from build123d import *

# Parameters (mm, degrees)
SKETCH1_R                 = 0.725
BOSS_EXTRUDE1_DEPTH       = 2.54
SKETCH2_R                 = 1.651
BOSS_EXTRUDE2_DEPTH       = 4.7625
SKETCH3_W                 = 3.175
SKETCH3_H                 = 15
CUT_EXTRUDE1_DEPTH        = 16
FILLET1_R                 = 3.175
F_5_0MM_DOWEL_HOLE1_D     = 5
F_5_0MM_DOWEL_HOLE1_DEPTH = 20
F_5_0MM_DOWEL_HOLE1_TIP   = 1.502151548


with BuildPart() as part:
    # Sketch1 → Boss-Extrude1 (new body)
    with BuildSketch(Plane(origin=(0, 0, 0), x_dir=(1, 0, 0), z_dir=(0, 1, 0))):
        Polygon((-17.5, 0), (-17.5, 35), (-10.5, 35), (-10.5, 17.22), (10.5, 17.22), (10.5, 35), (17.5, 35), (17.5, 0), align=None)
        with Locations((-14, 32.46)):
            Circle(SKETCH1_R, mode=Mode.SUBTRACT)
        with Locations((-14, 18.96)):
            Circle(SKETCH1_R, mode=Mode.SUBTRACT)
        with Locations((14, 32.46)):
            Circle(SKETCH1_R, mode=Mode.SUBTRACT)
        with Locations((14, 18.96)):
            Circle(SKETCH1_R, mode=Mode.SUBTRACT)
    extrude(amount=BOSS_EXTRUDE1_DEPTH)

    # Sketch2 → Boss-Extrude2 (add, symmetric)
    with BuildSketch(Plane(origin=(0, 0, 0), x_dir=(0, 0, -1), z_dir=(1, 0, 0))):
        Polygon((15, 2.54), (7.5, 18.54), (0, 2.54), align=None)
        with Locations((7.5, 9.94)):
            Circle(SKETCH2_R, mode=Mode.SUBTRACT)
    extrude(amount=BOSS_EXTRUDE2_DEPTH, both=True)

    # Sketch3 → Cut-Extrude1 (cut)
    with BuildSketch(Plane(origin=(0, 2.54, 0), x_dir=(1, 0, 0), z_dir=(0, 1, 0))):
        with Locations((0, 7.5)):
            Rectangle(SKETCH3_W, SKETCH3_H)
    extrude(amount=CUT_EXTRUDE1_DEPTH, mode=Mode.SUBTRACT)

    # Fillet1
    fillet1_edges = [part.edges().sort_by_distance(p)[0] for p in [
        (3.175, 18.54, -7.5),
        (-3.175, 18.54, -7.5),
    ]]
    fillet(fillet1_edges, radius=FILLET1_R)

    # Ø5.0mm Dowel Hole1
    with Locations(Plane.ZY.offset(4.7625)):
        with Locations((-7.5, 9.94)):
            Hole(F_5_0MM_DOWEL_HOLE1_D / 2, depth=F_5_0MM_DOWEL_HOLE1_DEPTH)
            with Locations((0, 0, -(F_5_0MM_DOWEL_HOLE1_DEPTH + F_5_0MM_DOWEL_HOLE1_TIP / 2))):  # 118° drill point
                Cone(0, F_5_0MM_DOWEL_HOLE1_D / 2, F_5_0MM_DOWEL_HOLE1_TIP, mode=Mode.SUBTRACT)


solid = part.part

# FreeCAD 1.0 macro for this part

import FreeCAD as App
import Part
import Sketcher
Q = App.Units.Quantity


def edges_at(feature, points):
    """Names of the edges that pass closest to the given points."""
    edges = feature.Shape.Edges
    near = lambda p: min(range(len(edges)), key=lambda i: edges[i].distToShape(Part.Vertex(*p))[0])
    return sorted({f"Edge{near(p) + 1}" for p in points})

doc = App.newDocument("Part")
body = doc.addObject("PartDesign::Body", "Body")

# Sketch on XZ plane
sketch1 = doc.addObject("Sketcher::SketchObject", "Sketch")
body.addObject(sketch1)
sketch1.AttachmentSupport = (doc.XZ_Plane, [""])
sketch1.MapMode = "FlatFace"
sketch1.addGeometry(Part.LineSegment(App.Vector(-17.5, -35, 0), App.Vector(-17.5, 0, 0)), False)
sketch1.addGeometry(Part.LineSegment(App.Vector(-17.5, 0, 0), App.Vector(17.5, 0, 0)), False)
sketch1.addGeometry(Part.LineSegment(App.Vector(17.5, 0, 0), App.Vector(17.5, -35, 0)), False)
sketch1.addGeometry(Part.LineSegment(App.Vector(17.5, -35, 0), App.Vector(10.5, -35, 0)), False)
sketch1.addGeometry(Part.LineSegment(App.Vector(10.5, -35, 0), App.Vector(10.5, -17.2, 0)), False)
sketch1.addGeometry(Part.LineSegment(App.Vector(10.5, -17.2, 0), App.Vector(-10.5, -17.2, 0)), False)
sketch1.addGeometry(Part.LineSegment(App.Vector(-10.5, -17.2, 0), App.Vector(-10.5, -35, 0)), False)
sketch1.addGeometry(Part.LineSegment(App.Vector(-10.5, -35, 0), App.Vector(-17.5, -35, 0)), False)
sketch1.addGeometry(Part.Circle(App.Vector(14, -19, 0), App.Vector(0, 0, 1), 0.7), False)
sketch1.addGeometry(Part.Circle(App.Vector(-14, -19, 0), App.Vector(0, 0, 1), 0.7), False)
sketch1.addGeometry(Part.Circle(App.Vector(14, -32.5, 0), App.Vector(0, 0, 1), 0.7), False)
sketch1.addGeometry(Part.Circle(App.Vector(-14, -32.5, 0), App.Vector(0, 0, 1), 0.7), False)
sketch1.addConstraint(Sketcher.Constraint("Coincident", 0, 2, 1, 1))
sketch1.addConstraint(Sketcher.Constraint("Coincident", 1, 2, 2, 1))
sketch1.addConstraint(Sketcher.Constraint("Coincident", 2, 2, 3, 1))
sketch1.addConstraint(Sketcher.Constraint("Coincident", 3, 2, 4, 1))
sketch1.addConstraint(Sketcher.Constraint("Coincident", 4, 2, 5, 1))
sketch1.addConstraint(Sketcher.Constraint("Coincident", 5, 2, 6, 1))
sketch1.addConstraint(Sketcher.Constraint("Coincident", 6, 2, 7, 1))
sketch1.addConstraint(Sketcher.Constraint("Coincident", 7, 2, 0, 1))
sketch1.addConstraint(Sketcher.Constraint("Vertical", 0))
sketch1.addConstraint(Sketcher.Constraint("Horizontal", 1))
sketch1.addConstraint(Sketcher.Constraint("Vertical", 2))
sketch1.addConstraint(Sketcher.Constraint("Horizontal", 3))
sketch1.addConstraint(Sketcher.Constraint("Vertical", 4))
sketch1.addConstraint(Sketcher.Constraint("Horizontal", 5))
sketch1.addConstraint(Sketcher.Constraint("Vertical", 6))
sketch1.addConstraint(Sketcher.Constraint("Horizontal", 7))
sketch1.addConstraint(Sketcher.Constraint("Equal", 8, 9))
sketch1.addConstraint(Sketcher.Constraint("Equal", 9, 10))
sketch1.addConstraint(Sketcher.Constraint("Equal", 10, 11))
sketch1.addConstraint(Sketcher.Constraint("Symmetric", 0, 2, 1, 2, -1, 1))
sketch1.addConstraint(Sketcher.Constraint("Symmetric", 8, 3, 9, 3, -2))
sketch1.addConstraint(Sketcher.Constraint("Symmetric", 10, 3, 11, 3, -2))
sketch1.addConstraint(Sketcher.Constraint("Symmetric", 3, 2, 6, 2, -2))
sketch1.addConstraint(Sketcher.Constraint("Vertical", 8, 3, 10, 3))
sketch1.addConstraint(Sketcher.Constraint("Equal", 1, 0))
sketch1.addConstraint(Sketcher.Constraint("Diameter", 8, Q("1.45 mm")))
sketch1.addConstraint(Sketcher.Constraint("DistanceX", 1, 1, 1, 2, Q("35 mm")))
sketch1.addConstraint(Sketcher.Constraint("DistanceX", 3, 2, 3, 1, Q("7 mm")))
sketch1.addConstraint(Sketcher.Constraint("DistanceX", -1, 1, 8, 3, Q("14 mm")))
sketch1.addConstraint(Sketcher.Constraint("DistanceY", 4, 1, 4, 2, Q("17.78 mm")))
sketch1.addConstraint(Sketcher.Constraint("DistanceY", 10, 3, 8, 3, Q("13.5 mm")))
sketch1.addConstraint(Sketcher.Constraint("DistanceY", 8, 3, -1, 1, Q("18.96 mm")))
pad1 = doc.addObject("PartDesign::Pad", "Pad")
body.addObject(pad1)
pad1.Profile = sketch1
pad1.Length = 2.54
pad1.Reversed = True

# Sketch on YZ plane
sketch2 = doc.addObject("Sketcher::SketchObject", "Sketch001")
body.addObject(sketch2)
sketch2.AttachmentSupport = (doc.YZ_Plane, [""])
sketch2.MapMode = "FlatFace"
sketch2.addGeometry(Part.LineSegment(App.Vector(2.5, -15, 0), App.Vector(18.5, -7.5, 0)), False)
sketch2.addGeometry(Part.LineSegment(App.Vector(18.5, -7.5, 0), App.Vector(2.5, 0, 0)), False)
sketch2.addGeometry(Part.LineSegment(App.Vector(2.5, 0, 0), App.Vector(2.5, -15, 0)), False)
sketch2.addGeometry(Part.Circle(App.Vector(9.9, -7.5, 0), App.Vector(0, 0, 1), 1.7), False)
sketch2.addConstraint(Sketcher.Constraint("Coincident", 0, 2, 1, 1))
sketch2.addConstraint(Sketcher.Constraint("Coincident", 1, 2, 2, 1))
sketch2.addConstraint(Sketcher.Constraint("Coincident", 2, 2, 0, 1))
sketch2.addConstraint(Sketcher.Constraint("Vertical", 2))
sketch2.addConstraint(Sketcher.Constraint("PointOnObject", 1, 2, -1))
sketch2.addConstraint(Sketcher.Constraint("Horizontal", 3, 3, 0, 2))
sketch2.addConstraint(Sketcher.Constraint("Equal", 0, 1))
sketch2.addConstraint(Sketcher.Constraint("DistanceY", 2, 2, 2, 1, Q("15 mm")))
sketch2.addConstraint(Sketcher.Constraint("Diameter", 3, Q("3.302 mm")))
sketch2.addConstraint(Sketcher.Constraint("DistanceX", 1, 2, 0, 2, Q("16 mm")))
sketch2.addConstraint(Sketcher.Constraint("DistanceX", 3, 3, 0, 2, Q("8.6 mm")))
sketch2.addConstraint(Sketcher.Constraint("DistanceX", -1, 1, 3, 3, Q("9.94 mm")))
pad2 = doc.addObject("PartDesign::Pad", "Pad001")
body.addObject(pad2)
pad2.Profile = sketch2
pad2.Length = 9.525
pad2.Midplane = True

# Sketch on XZ plane
sketch3 = doc.addObject("Sketcher::SketchObject", "Sketch002")
body.addObject(sketch3)
sketch3.AttachmentSupport = (doc.XZ_Plane, [""])
sketch3.MapMode = "FlatFace"
sketch3.AttachmentOffset = App.Placement(App.Vector(0, 0, -2.54), App.Rotation())
sketch3.addGeometry(Part.LineSegment(App.Vector(-1.6, -15, 0), App.Vector(-1.6, 0, 0)), False)
sketch3.addGeometry(Part.LineSegment(App.Vector(-1.6, 0, 0), App.Vector(1.6, 0, 0)), False)
sketch3.addGeometry(Part.LineSegment(App.Vector(1.6, 0, 0), App.Vector(1.6, -15, 0)), False)
sketch3.addGeometry(Part.LineSegment(App.Vector(1.6, -15, 0), App.Vector(-1.6, -15, 0)), False)
sketch3.addConstraint(Sketcher.Constraint("Coincident", 0, 2, 1, 1))
sketch3.addConstraint(Sketcher.Constraint("Coincident", 1, 2, 2, 1))
sketch3.addConstraint(Sketcher.Constraint("Coincident", 2, 2, 3, 1))
sketch3.addConstraint(Sketcher.Constraint("Coincident", 3, 2, 0, 1))
sketch3.addConstraint(Sketcher.Constraint("Vertical", 0))
sketch3.addConstraint(Sketcher.Constraint("Horizontal", 1))
sketch3.addConstraint(Sketcher.Constraint("Vertical", 2))
sketch3.addConstraint(Sketcher.Constraint("Horizontal", 3))
sketch3.addConstraint(Sketcher.Constraint("Symmetric", 0, 2, 1, 2, -1, 1))
sketch3.addConstraint(Sketcher.Constraint("DistanceY", 0, 1, 0, 2, Q("15 mm")))
sketch3.addConstraint(Sketcher.Constraint("DistanceX", 1, 1, 1, 2, Q("3.175 mm")))
pocket1 = doc.addObject("PartDesign::Pocket", "Pocket")
body.addObject(pocket1)
pocket1.Profile = sketch3
pocket1.Length = 16
doc.recompute()

fillet = doc.addObject("PartDesign::Fillet", "Fillet")
body.addObject(fillet)
fillet.Base = (pocket1, edges_at(pocket1, [(3.175, 18.54, -7.5), (-3.175, 18.54, -7.5)]))
fillet.Radius = 3.175

# Sketch on YZ plane
sketch4 = doc.addObject("Sketcher::SketchObject", "Sketch003")
body.addObject(sketch4)
sketch4.AttachmentSupport = (doc.YZ_Plane, [""])
sketch4.MapMode = "FlatFace"
sketch4.AttachmentOffset = App.Placement(App.Vector(0, 0, -4.7625), App.Rotation())
sketch4.addGeometry(Part.Circle(App.Vector(9.9, -7.5, 0), App.Vector(0, 0, 1), 2.5), False)
sketch4.addConstraint(Sketcher.Constraint("Diameter", 0, Q("5 mm")))
sketch4.addConstraint(Sketcher.Constraint("DistanceY", 0, 3, -1, 1, Q("7.5 mm")))
sketch4.addConstraint(Sketcher.Constraint("DistanceX", -1, 1, 0, 3, Q("9.94 mm")))
doc.recompute()
hole = doc.addObject("PartDesign::Hole", "Hole")
body.addObject(hole)
hole.Profile = sketch4
hole.ThreadType = "None"
hole.Diameter = 5
hole.DepthType = "Dimension"
hole.Depth = 20
hole.DrillPoint = "Angled"
hole.DrillPointAngle = 118
hole.Reversed = True

doc.recompute()
